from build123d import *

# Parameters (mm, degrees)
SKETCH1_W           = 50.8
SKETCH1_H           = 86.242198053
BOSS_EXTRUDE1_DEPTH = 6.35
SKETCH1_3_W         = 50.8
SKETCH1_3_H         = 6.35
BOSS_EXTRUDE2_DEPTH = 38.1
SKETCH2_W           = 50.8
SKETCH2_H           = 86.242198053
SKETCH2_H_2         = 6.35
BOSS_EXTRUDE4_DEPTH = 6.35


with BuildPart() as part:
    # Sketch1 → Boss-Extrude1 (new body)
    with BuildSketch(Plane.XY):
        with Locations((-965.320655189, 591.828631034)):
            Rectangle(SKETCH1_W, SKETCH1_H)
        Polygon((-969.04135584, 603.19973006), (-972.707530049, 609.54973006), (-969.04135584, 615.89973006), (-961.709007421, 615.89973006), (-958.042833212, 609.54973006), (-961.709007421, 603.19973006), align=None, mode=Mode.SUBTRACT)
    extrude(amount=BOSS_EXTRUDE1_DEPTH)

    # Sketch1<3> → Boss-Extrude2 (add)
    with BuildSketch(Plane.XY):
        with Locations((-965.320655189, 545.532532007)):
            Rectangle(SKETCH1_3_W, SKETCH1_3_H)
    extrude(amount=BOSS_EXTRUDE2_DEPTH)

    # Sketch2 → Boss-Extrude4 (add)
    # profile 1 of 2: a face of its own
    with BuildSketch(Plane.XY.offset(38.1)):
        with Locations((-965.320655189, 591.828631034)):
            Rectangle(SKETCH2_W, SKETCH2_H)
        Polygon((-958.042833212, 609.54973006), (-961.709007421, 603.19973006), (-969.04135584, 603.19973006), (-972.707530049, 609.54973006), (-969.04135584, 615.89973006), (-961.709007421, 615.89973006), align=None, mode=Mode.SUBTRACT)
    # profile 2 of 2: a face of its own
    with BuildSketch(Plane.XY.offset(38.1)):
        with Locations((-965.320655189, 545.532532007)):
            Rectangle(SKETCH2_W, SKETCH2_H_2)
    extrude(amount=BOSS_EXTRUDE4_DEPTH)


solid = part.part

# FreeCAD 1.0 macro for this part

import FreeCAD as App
import Part
import Sketcher
from FreeCAD import Vector
Q = App.Units.Quantity


def add_polygon(sketch, points):
    """Adds a closed chain of lines whose ends are joined by coincident constraints."""
    first, n = sketch.GeometryCount, len(points)
    for a, b in zip(points, points[1:] + points[:1]):
        sketch.addGeometry(Part.LineSegment(App.Vector(*a, 0), App.Vector(*b, 0)), False)
    for i in range(n):
        sketch.addConstraint(Sketcher.Constraint("Coincident", first + i, 2, first + (i + 1) % n, 1))

doc = App.newDocument("Part")
params = doc.addObject("Spreadsheet::Sheet", "Params")
for row, (alias, value) in enumerate([
    ("sketch1_width", "2 in"),
    ("pad1_length", "0.25 in"),
    ("sketch2_width", "2 in"),
    ("sketch2_height", "0.25 in"),
    ("pad2_length", "1.5 in"),
    ("sketch3_width", "2 in"),
    ("pad3_length", "0.25 in"),
], start=1):
    params.set(f"A{row}", alias)
    params.set(f"B{row}", "=" + value)
    params.setAlias(f"B{row}", alias)

body = doc.addObject("PartDesign::Body", "Body")

# Sketch on XY plane
sketch1 = doc.addObject("Sketcher::SketchObject", "Sketch")
body.addObject(sketch1)
sketch1.AttachmentSupport = (doc.XY_Plane, [""])
sketch1.MapMode = "FlatFace"
add_polygon(sketch1, [(-991, 635), (-991, 549), (-940, 549), (-940, 635)])  # lines 0-3
add_polygon(sketch1, [(-962, 603), (-969, 603), (-973, 610), (-969, 616), (-962, 616), (-958, 610)])  # lines 4-9
sketch1.addConstraint([
    Sketcher.Constraint("Vertical", 0),
    Sketcher.Constraint("Horizontal", 1),
    Sketcher.Constraint("Vertical", 2),
    Sketcher.Constraint("Horizontal", 3),
    Sketcher.Constraint("Horizontal", 4),
    Sketcher.Constraint("Horizontal", 7),
    Sketcher.Constraint("Parallel", 5, 8),
    Sketcher.Constraint("Parallel", 6, 9),
    Sketcher.Constraint("Horizontal", 5, 2, 8, 2),
    Sketcher.Constraint("Vertical", 4, 2, 6, 2),
    Sketcher.Constraint("Vertical", 7, 2, 9, 2),
    Sketcher.Constraint("DistanceX", 1, 1, 1, 2, Q("2 in")),
    Sketcher.Constraint("Angle", 5, Q("120 deg")),
    Sketcher.Constraint("DistanceY", 5, 2, 3, 2, Q("1 in")),
    Sketcher.Constraint("DistanceY", 4, 2, 6, 2, Q("0.5 in")),
    Sketcher.Constraint("DistanceY", 0, 2, 0, 1, Q("86.242198 mm")),
    Sketcher.Constraint("DistanceX", 4, 2, 4, 1, Q("7.332348 mm")),
    Sketcher.Constraint("DistanceX", 3, 2, 4, 2, Q("21.679299 mm")),
    Sketcher.Constraint("DistanceY", -1, 1, 2, 2, Q("634.94973 mm")),
    Sketcher.Constraint("DistanceX", 5, 2, -1, 1, Q("972.70753 mm")),
])
sketch1.setExpression("Constraints[21]", "Params.sketch1_width")
pad1 = doc.addObject("PartDesign::Pad", "Pad")
body.addObject(pad1)
pad1.Profile = sketch1
pad1.setExpression("Length", "Params.pad1_length")

# Sketch on XY plane
sketch2 = doc.addObject("Sketcher::SketchObject", "Sketch001")
body.addObject(sketch2)
sketch2.AttachmentSupport = (doc.XY_Plane, [""])
sketch2.MapMode = "FlatFace"
add_polygon(sketch2, [(-991, 549), (-991, 542), (-940, 542), (-940, 549)])  # lines 0-3
sketch2.addConstraint([
    Sketcher.Constraint("Vertical", 0),
    Sketcher.Constraint("Horizontal", 1),
    Sketcher.Constraint("Vertical", 2),
    Sketcher.Constraint("Horizontal", 3),
    Sketcher.Constraint("DistanceX", 1, 1, 1, 2, Q("2 in")),
    Sketcher.Constraint("DistanceY", 0, 2, 0, 1, Q("0.25 in")),
    Sketcher.Constraint("DistanceX", 0, 2, -1, 1, Q("990.720655 mm")),
    Sketcher.Constraint("DistanceY", -1, 1, 0, 2, Q("542.357532 mm")),
])
sketch2.setExpression("Constraints[8]", "Params.sketch2_width")
sketch2.setExpression("Constraints[9]", "Params.sketch2_height")
pad2 = doc.addObject("PartDesign::Pad", "Pad001")
body.addObject(pad2)
pad2.Profile = sketch2
pad2.setExpression("Length", "Params.pad2_length")

# Sketch on XY plane
sketch3 = doc.addObject("Sketcher::SketchObject", "Sketch002")
body.addObject(sketch3)
sketch3.AttachmentSupport = (doc.XY_Plane, [""])
sketch3.MapMode = "FlatFace"
sketch3.AttachmentOffset = App.Placement(Vector(0, 0, 1.5 * 25.4), App.Rotation())
add_polygon(sketch3, [(-991, 635), (-991, 542), (-940, 542), (-940, 635)])  # lines 0-3
add_polygon(sketch3, [(-962, 616), (-958, 610), (-962, 603), (-969, 603), (-973, 610), (-969, 616)])  # lines 4-9
sketch3.addConstraint([
    Sketcher.Constraint("Vertical", 0),
    Sketcher.Constraint("Horizontal", 1),
    Sketcher.Constraint("Vertical", 2),
    Sketcher.Constraint("Horizontal", 3),
    Sketcher.Constraint("Horizontal", 6),
    Sketcher.Constraint("Horizontal", 9),
    Sketcher.Constraint("Parallel", 4, 7),
    Sketcher.Constraint("Parallel", 5, 8),
    Sketcher.Constraint("Horizontal", 4, 2, 7, 2),
    Sketcher.Constraint("Vertical", 6, 2, 8, 2),
    Sketcher.Constraint("Vertical", 5, 2, 9, 2),
    Sketcher.Constraint("DistanceX", 1, 1, 1, 2, Q("2 in")),
    Sketcher.Constraint("Angle", 4, Q("-60 deg")),
    Sketcher.Constraint("DistanceY", 4, 2, 2, 2, Q("1 in")),
    Sketcher.Constraint("DistanceY", 6, 2, 8, 2, Q("0.5 in")),
    Sketcher.Constraint("DistanceY", 0, 2, 0, 1, Q("92.592198 mm")),
    Sketcher.Constraint("DistanceX", 6, 2, 6, 1, Q("7.332348 mm")),
    Sketcher.Constraint("DistanceX", 3, 2, 6, 2, Q("21.679299 mm")),
    Sketcher.Constraint("DistanceY", -1, 1, 2, 2, Q("634.94973 mm")),
    Sketcher.Constraint("DistanceX", 7, 2, -1, 1, Q("972.70753 mm")),
])
sketch3.setExpression("Constraints[21]", "Params.sketch3_width")
pad3 = doc.addObject("PartDesign::Pad", "Pad002")
body.addObject(pad3)
pad3.Profile = sketch3
pad3.setExpression("Length", "Params.pad3_length")

doc.recompute()
